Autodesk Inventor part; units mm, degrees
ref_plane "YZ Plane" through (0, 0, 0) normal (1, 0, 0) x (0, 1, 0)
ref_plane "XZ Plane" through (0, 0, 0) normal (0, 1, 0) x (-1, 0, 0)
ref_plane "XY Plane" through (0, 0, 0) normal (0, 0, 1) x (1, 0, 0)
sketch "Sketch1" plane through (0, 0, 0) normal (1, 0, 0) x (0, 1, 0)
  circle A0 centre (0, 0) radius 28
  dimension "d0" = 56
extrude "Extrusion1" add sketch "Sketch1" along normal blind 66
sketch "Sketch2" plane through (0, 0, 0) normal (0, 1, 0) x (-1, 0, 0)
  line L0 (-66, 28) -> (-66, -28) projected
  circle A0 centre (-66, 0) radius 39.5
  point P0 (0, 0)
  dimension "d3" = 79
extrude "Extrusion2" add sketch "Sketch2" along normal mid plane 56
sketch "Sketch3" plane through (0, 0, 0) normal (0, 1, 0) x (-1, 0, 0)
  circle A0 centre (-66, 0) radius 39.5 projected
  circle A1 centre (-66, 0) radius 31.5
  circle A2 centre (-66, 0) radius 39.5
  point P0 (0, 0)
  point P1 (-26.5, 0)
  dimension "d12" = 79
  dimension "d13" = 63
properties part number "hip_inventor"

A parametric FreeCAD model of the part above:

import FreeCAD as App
import Part
import Sketcher
from FreeCAD import Vector
Q = App.Units.Quantity

doc = App.newDocument("Part")
body = doc.addObject("PartDesign::Body", "Body")

sketch1 = body.newObject("Sketcher::SketchObject", "Sketch")
sketch1.AttachmentSupport = (doc.getObject("YZ_Plane"), [""])
sketch1.MapMode = "FlatFace"
sketch1.addGeometry(Part.Circle(Vector(0, 0, 0), Vector(0, 0, 1), 28), False)
sketch1.addConstraint([
    Sketcher.Constraint("Coincident", 0, 3, -1, 1),
    Sketcher.Constraint("Diameter", 0, Q("56 mm")),
])
pad1 = body.newObject("PartDesign::Pad", "Pad")
pad1.Profile = sketch1
pad1.Length = 66

sketch2 = body.newObject("Sketcher::SketchObject", "Sketch001")
sketch2.AttachmentSupport = (doc.getObject("XZ_Plane"), [""])
sketch2.MapMode = "FlatFace"
sketch2.addGeometry(Part.Circle(Vector(66, 0, 0), Vector(0, 0, 1), 40), False)
sketch2.addConstraint([
    Sketcher.Constraint("PointOnObject", 0, 3, -1),
    Sketcher.Constraint("Diameter", 0, Q("79 mm")),
    Sketcher.Constraint("DistanceX", -1, 1, 0, 3, Q("66 mm")),
])
pad2 = body.newObject("PartDesign::Pad", "Pad001")
pad2.Profile = sketch2
pad2.Length = 56
pad2.Midplane = True

doc.recompute()
